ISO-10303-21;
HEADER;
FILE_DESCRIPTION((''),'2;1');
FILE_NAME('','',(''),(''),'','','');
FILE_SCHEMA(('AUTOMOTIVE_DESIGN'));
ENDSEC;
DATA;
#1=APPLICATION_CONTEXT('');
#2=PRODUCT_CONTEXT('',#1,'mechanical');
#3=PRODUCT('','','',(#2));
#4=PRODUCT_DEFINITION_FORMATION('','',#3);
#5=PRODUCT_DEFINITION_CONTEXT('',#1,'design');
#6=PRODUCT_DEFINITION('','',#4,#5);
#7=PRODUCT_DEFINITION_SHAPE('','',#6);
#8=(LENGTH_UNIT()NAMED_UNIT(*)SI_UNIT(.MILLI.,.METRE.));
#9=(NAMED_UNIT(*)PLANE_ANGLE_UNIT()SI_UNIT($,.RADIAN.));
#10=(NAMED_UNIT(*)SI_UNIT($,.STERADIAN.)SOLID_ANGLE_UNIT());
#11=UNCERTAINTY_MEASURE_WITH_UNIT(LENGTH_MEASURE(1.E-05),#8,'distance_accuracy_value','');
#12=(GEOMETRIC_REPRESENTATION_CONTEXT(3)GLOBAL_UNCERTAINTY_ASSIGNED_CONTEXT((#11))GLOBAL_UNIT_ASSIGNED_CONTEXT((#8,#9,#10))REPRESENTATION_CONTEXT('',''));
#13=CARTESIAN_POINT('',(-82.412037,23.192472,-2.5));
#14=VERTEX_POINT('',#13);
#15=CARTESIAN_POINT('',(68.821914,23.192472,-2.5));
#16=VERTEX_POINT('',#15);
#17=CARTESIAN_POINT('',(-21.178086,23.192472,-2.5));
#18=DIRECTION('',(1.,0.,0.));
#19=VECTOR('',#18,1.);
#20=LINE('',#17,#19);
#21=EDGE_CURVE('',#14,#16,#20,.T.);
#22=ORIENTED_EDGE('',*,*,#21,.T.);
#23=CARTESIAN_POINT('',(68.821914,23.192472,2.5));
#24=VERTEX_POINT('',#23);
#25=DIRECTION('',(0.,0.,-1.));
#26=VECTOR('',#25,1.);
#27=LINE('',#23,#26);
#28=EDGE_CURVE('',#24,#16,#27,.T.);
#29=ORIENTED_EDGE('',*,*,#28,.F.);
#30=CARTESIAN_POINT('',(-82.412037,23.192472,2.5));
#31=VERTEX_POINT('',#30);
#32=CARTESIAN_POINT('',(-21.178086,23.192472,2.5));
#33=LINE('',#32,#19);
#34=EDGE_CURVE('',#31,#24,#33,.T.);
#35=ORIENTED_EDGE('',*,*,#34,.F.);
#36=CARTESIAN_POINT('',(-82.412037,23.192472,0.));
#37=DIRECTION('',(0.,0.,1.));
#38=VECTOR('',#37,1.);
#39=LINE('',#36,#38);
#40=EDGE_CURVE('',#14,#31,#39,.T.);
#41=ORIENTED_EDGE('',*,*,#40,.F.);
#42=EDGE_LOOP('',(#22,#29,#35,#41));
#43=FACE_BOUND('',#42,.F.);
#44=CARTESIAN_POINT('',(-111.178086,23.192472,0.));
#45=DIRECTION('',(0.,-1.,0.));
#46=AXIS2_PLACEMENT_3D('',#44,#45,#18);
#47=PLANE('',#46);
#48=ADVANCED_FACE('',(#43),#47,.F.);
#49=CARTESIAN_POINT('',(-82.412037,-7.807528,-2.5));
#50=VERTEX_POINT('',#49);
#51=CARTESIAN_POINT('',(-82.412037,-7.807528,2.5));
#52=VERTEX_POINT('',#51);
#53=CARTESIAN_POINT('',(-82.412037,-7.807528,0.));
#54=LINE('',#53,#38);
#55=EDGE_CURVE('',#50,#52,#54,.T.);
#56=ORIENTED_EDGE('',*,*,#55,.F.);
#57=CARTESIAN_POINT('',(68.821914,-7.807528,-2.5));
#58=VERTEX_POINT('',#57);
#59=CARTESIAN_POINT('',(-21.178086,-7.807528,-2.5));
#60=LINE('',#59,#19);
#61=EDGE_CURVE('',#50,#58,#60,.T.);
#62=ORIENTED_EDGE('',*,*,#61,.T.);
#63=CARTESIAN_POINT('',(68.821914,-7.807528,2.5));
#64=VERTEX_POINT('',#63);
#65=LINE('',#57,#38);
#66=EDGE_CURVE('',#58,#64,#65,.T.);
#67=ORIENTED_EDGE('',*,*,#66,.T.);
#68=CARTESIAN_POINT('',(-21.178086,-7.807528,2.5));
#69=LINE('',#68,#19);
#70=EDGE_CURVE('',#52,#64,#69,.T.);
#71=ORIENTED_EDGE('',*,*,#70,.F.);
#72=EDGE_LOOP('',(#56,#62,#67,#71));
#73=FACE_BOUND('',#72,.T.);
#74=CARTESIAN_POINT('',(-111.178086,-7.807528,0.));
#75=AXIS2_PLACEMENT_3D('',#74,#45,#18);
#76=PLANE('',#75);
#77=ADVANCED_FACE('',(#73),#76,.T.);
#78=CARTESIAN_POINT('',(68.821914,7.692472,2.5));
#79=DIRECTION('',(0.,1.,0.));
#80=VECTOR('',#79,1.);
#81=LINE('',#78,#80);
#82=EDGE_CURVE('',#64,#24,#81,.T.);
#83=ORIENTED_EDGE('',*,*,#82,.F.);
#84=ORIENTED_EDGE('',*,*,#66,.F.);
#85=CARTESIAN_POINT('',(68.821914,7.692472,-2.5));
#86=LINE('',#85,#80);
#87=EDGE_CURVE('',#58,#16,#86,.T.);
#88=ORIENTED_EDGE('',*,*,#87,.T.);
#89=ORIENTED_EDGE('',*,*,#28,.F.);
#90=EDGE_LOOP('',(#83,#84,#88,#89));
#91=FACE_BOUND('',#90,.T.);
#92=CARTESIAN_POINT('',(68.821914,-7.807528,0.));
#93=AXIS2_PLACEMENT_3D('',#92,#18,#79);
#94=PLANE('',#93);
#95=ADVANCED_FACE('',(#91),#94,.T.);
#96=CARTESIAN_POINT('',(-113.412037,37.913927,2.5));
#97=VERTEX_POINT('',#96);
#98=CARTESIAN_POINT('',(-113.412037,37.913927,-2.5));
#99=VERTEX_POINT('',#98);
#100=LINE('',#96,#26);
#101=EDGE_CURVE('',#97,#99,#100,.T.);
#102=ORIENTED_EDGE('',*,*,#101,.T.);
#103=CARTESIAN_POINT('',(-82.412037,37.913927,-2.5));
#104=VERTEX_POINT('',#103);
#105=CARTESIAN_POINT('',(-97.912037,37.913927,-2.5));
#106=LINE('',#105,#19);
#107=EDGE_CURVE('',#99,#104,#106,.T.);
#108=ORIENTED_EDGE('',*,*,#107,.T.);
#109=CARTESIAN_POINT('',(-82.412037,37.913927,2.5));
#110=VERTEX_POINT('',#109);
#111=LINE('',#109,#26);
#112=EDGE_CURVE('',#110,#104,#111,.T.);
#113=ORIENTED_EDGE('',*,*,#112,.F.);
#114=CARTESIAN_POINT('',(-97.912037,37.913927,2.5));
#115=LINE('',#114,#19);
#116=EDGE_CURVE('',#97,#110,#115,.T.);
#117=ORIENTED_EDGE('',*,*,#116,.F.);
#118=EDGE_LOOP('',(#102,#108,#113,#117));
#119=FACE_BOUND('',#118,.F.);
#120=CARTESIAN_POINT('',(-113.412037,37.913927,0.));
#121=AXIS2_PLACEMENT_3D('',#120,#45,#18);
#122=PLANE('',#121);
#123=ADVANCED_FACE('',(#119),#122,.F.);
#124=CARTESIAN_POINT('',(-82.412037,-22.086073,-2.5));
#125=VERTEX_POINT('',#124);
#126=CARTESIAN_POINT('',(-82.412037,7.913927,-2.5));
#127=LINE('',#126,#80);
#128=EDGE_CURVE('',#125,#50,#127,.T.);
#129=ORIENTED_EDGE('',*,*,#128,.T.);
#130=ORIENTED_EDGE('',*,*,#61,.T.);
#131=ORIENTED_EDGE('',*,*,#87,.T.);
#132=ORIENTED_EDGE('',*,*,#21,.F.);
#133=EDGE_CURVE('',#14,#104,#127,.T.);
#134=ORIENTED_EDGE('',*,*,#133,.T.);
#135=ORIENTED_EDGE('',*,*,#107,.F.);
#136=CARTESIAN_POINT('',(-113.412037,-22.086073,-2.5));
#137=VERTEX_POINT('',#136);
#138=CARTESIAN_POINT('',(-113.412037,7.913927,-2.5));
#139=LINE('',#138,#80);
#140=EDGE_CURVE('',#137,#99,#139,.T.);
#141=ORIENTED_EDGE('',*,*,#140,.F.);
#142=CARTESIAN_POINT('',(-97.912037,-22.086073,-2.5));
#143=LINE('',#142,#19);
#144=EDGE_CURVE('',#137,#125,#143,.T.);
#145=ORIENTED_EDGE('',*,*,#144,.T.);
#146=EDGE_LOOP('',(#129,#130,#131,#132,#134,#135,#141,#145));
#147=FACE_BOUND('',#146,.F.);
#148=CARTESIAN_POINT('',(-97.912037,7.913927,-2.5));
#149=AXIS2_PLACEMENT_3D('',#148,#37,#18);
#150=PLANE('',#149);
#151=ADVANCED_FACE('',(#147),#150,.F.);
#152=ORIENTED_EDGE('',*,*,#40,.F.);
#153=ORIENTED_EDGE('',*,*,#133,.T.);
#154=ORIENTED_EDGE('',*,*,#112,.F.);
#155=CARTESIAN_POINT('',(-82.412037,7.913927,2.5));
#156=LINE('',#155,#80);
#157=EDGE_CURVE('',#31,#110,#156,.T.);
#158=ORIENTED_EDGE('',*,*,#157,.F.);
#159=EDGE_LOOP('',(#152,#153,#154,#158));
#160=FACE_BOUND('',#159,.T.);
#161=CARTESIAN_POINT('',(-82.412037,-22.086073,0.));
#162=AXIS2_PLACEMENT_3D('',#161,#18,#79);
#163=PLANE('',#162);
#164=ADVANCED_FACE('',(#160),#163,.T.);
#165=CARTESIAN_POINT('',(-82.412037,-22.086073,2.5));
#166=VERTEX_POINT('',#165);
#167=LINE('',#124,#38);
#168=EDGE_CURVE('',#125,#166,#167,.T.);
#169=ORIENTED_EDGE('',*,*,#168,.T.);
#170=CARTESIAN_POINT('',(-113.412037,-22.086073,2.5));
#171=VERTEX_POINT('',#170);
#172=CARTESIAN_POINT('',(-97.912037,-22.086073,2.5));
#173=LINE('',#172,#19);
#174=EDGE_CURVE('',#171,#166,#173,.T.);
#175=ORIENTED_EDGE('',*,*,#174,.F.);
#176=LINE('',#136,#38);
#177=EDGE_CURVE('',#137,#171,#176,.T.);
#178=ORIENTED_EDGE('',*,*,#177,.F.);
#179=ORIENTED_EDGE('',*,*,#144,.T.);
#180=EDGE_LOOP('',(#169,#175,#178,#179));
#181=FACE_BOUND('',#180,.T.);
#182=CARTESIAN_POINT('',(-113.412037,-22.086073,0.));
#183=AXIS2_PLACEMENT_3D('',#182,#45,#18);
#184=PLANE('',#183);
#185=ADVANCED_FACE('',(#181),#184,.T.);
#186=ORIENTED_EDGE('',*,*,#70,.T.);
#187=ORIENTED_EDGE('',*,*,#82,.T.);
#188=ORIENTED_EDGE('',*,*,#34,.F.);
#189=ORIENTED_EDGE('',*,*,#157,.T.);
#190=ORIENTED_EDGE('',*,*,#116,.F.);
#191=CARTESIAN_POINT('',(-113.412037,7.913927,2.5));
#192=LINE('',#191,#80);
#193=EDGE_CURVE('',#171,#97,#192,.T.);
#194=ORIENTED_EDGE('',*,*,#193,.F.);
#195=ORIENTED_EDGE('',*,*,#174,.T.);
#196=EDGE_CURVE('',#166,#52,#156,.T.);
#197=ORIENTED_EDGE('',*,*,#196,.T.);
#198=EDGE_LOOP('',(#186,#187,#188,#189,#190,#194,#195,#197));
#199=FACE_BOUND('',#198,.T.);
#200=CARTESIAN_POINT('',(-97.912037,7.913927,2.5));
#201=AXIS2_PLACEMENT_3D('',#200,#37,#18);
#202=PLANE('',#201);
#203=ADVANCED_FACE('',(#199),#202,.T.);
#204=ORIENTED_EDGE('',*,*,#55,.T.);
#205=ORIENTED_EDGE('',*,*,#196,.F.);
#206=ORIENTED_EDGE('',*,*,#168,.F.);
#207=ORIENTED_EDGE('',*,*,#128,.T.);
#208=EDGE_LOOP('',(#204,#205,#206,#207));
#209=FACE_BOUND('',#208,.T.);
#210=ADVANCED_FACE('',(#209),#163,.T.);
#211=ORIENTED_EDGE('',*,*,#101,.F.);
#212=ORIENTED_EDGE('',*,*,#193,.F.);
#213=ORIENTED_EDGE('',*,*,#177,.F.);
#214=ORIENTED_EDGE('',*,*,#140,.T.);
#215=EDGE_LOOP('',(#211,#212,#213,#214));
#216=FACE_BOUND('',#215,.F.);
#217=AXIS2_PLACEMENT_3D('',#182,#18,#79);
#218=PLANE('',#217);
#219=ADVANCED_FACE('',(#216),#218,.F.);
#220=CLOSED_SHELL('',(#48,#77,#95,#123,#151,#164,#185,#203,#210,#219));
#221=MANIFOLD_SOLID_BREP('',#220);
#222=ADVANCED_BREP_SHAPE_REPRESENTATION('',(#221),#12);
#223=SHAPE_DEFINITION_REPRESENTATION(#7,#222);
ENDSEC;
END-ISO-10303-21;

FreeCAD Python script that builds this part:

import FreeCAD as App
import Part
import Sketcher
from FreeCAD import Vector
Q = App.Units.Quantity


def add_polygon(sketch, points):
    """Adds a closed chain of lines whose ends are joined by coincident constraints."""
    first, n = sketch.GeometryCount, len(points)
    for a, b in zip(points, points[1:] + points[:1]):
        sketch.addGeometry(Part.LineSegment(App.Vector(*a, 0), App.Vector(*b, 0)), False)
    for i in range(n):
        sketch.addConstraint(Sketcher.Constraint("Coincident", first + i, 2, first + (i + 1) % n, 1))

doc = App.newDocument("Part")
body = doc.addObject("PartDesign::Body", "Body")

# Sketch on XY plane
sketch1 = body.newObject("Sketcher::SketchObject", "Sketch")
sketch1.AttachmentSupport = (doc.getObject("XY_Plane"), [""])
sketch1.MapMode = "FlatFace"
add_polygon(sketch1, [(-111, 23), (-111, -8), (69, -8), (69, 23)])  # lines 0-3
sketch1.addConstraint(Sketcher.Constraint("Vertical", 0))
sketch1.addConstraint(Sketcher.Constraint("Horizontal", 1))
sketch1.addConstraint(Sketcher.Constraint("Vertical", 2))
sketch1.addConstraint(Sketcher.Constraint("Horizontal", 3))
sketch1.addConstraint(Sketcher.Constraint("DistanceX", 1, 1, 1, 2, Q("180 mm")))
sketch1.addConstraint(Sketcher.Constraint("DistanceY", 0, 2, 0, 1, Q("31 mm")))
sketch1.addConstraint(Sketcher.Constraint("DistanceY", -1, 1, 2, 2, Q("23.192472 mm")))
sketch1.addConstraint(Sketcher.Constraint("DistanceX", 0, 2, -1, 1, Q("111.178086 mm")))
pad1 = body.newObject("PartDesign::Pad", "Pad")
pad1.Profile = sketch1
pad1.Length = 5
pad1.Midplane = True

# Sketch on XY plane
sketch2 = body.newObject("Sketcher::SketchObject", "Sketch001")
sketch2.AttachmentSupport = (doc.getObject("XY_Plane"), [""])
sketch2.MapMode = "FlatFace"
add_polygon(sketch2, [(-113, 38), (-113, -22), (-82, -22), (-82, 38)])  # lines 0-3
sketch2.addConstraint(Sketcher.Constraint("Vertical", 0))
sketch2.addConstraint(Sketcher.Constraint("Horizontal", 1))
sketch2.addConstraint(Sketcher.Constraint("Vertical", 2))
sketch2.addConstraint(Sketcher.Constraint("Horizontal", 3))
sketch2.addConstraint(Sketcher.Constraint("DistanceX", 1, 1, 1, 2, Q("31 mm")))
sketch2.addConstraint(Sketcher.Constraint("DistanceY", 0, 2, 0, 1, Q("60 mm")))
sketch2.addConstraint(Sketcher.Constraint("DistanceX", 0, 2, -1, 1, Q("113.412037 mm")))
sketch2.addConstraint(Sketcher.Constraint("DistanceY", 0, 2, -1, 1, Q("22.086073 mm")))
pad2 = body.newObject("PartDesign::Pad", "Pad001")
pad2.Profile = sketch2
pad2.Length = 5
pad2.Midplane = True

doc.recompute()
